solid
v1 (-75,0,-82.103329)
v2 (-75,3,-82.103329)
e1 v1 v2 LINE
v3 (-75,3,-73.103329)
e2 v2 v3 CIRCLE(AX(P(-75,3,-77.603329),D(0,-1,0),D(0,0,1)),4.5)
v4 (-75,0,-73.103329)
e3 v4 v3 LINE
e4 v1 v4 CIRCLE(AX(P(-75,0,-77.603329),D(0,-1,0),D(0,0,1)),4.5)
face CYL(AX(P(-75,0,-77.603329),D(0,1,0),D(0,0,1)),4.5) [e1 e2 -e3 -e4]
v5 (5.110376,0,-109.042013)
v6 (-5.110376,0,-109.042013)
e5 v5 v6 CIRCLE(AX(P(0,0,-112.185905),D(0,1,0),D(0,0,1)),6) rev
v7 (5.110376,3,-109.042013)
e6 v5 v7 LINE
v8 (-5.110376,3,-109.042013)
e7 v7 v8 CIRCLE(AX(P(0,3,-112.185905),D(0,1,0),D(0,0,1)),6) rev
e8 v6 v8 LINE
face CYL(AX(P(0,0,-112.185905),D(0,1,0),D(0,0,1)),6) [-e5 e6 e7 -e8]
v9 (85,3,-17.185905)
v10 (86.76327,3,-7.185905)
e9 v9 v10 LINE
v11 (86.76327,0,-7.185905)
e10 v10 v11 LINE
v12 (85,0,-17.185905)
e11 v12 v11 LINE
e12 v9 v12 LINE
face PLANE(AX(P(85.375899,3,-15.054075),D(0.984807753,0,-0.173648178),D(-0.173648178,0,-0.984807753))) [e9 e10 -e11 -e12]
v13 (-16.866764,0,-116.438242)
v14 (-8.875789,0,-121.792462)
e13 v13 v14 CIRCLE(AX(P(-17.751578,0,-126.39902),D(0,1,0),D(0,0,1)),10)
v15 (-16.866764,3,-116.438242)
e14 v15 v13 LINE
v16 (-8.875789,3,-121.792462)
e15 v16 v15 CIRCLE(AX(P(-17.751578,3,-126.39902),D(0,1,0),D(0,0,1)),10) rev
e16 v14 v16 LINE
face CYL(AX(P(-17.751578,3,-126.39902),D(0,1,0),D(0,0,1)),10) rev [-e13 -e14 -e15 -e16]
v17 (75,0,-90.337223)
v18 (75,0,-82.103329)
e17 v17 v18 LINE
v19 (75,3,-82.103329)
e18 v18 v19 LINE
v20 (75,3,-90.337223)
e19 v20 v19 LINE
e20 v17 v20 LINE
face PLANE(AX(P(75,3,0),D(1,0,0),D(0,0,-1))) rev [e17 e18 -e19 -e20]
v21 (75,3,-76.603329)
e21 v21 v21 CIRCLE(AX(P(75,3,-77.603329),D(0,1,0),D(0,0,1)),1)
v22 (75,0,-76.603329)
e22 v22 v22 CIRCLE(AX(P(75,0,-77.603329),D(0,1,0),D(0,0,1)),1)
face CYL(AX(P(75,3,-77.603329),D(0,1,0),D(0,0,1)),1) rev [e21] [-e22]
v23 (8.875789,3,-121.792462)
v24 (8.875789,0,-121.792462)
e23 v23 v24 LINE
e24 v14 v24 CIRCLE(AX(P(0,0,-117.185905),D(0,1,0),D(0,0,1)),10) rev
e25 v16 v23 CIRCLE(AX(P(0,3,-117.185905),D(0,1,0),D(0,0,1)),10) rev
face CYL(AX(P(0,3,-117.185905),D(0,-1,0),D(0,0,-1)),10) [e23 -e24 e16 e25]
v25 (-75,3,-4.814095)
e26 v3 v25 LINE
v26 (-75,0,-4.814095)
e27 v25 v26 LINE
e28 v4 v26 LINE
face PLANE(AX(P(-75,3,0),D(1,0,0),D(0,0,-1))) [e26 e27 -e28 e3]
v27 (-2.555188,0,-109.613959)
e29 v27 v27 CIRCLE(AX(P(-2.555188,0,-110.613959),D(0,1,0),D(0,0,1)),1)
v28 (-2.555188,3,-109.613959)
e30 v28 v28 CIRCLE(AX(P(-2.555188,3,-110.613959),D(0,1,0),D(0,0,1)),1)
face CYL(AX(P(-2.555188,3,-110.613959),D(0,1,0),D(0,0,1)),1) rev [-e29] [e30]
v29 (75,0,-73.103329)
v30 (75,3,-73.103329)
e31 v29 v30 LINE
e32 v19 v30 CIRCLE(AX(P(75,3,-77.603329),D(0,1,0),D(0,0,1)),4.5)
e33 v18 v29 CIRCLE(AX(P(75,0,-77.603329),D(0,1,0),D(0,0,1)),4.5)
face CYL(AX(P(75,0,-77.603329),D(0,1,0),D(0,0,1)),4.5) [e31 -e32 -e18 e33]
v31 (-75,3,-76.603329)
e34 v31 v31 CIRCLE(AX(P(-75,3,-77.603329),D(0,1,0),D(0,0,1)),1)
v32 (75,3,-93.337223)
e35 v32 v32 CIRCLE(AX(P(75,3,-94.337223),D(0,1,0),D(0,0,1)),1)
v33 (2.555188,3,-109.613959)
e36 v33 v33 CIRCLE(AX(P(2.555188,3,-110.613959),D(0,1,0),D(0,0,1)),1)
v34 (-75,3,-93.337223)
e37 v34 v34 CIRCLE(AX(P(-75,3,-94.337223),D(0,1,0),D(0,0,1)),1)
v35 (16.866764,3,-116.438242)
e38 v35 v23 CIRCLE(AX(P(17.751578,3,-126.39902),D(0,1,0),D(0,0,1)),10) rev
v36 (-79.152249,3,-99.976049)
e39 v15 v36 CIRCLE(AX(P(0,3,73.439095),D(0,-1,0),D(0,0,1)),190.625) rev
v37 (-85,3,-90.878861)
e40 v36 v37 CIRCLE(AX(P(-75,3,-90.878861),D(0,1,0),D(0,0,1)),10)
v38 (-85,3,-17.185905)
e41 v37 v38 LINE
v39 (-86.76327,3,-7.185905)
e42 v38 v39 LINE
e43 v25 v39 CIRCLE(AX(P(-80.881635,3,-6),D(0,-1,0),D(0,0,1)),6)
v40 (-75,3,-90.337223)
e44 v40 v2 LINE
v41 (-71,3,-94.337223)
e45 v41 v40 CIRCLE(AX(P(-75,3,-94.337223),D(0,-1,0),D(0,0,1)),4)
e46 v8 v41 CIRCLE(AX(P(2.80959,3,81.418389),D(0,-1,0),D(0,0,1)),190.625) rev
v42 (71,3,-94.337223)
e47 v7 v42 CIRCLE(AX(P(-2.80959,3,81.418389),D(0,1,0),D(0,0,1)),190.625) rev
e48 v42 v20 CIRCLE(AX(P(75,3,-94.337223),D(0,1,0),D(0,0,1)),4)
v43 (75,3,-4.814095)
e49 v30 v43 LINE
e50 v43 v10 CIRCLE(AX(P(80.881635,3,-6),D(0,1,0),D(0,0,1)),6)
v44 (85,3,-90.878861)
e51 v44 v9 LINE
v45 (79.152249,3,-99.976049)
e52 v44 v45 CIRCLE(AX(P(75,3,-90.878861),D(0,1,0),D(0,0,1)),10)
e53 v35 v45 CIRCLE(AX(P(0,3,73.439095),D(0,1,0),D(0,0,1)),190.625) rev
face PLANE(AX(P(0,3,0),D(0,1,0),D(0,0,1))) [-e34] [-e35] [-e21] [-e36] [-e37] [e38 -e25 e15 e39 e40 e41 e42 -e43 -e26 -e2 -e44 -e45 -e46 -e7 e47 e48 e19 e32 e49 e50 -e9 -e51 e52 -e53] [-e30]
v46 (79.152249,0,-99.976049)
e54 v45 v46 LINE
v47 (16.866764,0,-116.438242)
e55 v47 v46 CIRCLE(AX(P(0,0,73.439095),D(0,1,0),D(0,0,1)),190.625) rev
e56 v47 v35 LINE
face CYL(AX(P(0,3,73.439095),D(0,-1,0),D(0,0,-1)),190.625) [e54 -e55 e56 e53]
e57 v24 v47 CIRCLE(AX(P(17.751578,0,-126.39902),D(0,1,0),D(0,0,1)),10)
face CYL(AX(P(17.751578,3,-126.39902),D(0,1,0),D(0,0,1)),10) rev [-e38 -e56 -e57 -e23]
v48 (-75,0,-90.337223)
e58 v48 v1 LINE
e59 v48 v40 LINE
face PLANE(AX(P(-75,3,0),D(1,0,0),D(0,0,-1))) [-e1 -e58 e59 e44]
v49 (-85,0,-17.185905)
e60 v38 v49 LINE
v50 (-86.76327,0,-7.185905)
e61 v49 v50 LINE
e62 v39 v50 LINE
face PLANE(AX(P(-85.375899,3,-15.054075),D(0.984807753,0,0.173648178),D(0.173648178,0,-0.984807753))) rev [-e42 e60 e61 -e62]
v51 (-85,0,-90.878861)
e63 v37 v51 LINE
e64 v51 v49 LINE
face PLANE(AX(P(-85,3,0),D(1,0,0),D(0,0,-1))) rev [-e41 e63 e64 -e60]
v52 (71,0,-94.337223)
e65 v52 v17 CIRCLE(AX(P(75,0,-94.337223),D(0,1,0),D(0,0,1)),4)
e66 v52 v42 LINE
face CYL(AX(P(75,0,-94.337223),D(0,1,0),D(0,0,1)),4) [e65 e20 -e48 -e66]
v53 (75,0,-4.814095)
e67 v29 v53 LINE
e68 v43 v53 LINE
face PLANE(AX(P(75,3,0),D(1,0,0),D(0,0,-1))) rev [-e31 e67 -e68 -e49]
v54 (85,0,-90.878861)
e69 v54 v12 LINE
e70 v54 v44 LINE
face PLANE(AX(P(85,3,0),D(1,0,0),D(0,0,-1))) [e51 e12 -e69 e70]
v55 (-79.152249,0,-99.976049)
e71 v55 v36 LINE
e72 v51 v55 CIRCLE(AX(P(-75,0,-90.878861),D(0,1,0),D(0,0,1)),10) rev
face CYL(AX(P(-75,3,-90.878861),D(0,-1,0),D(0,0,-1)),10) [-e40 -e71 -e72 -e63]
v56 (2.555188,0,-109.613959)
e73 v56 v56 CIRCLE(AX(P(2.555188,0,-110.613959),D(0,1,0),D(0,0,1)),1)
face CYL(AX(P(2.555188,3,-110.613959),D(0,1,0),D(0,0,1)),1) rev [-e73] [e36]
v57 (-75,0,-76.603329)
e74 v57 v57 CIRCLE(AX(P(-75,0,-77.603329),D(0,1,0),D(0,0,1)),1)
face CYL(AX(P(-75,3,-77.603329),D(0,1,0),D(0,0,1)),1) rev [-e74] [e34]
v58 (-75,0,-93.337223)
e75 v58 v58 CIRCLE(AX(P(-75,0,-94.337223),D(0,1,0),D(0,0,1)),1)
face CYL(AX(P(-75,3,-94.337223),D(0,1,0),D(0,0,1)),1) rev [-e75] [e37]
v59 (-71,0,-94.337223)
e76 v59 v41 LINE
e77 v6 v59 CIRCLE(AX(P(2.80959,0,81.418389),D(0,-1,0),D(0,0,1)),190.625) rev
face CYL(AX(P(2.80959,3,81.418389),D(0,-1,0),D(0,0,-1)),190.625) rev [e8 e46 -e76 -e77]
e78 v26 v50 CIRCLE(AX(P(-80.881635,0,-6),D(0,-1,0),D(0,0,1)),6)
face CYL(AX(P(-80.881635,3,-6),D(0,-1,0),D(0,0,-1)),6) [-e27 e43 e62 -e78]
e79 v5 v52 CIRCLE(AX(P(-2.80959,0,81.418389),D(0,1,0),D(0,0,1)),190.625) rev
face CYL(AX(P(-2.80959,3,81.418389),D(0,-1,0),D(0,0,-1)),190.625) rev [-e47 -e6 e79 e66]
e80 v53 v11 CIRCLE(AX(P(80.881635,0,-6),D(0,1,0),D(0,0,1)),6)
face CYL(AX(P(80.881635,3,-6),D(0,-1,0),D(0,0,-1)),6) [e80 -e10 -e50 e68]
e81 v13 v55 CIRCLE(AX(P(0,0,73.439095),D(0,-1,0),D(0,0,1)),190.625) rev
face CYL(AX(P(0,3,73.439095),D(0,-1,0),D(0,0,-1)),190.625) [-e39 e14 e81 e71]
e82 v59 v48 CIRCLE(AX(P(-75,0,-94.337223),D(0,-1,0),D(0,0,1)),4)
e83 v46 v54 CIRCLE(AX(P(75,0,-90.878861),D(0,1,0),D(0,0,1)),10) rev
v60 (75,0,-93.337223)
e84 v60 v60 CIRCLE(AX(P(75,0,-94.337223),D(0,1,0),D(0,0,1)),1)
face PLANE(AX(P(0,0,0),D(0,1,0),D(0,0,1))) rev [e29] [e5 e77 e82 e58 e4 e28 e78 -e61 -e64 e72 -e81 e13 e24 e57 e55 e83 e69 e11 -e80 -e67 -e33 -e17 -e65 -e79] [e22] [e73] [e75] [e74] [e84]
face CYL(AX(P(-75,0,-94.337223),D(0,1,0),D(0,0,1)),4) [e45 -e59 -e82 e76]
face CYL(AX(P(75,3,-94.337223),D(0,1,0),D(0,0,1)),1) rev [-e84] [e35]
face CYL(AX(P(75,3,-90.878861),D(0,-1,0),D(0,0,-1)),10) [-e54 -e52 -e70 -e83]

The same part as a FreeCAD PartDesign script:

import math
import FreeCAD as App
import Part
import Sketcher
Q = App.Units.Quantity


def edges_at(feature, points):
    """Names of the edges that pass closest to the given points."""
    edges = feature.Shape.Edges
    near = lambda p: min(range(len(edges)), key=lambda i: edges[i].distToShape(Part.Vertex(*p))[0])
    return sorted({f"Edge{near(p) + 1}" for p in points})

doc = App.newDocument("Part")
body = doc.addObject("PartDesign::Body", "Body")

sketch1 = body.newObject("Sketcher::SketchObject", "Sketch")
sketch1.AttachmentSupport = (doc.getObject("XZ_Plane"), [""])
sketch1.MapMode = "FlatFace"
sketch1.addGeometry([
    Part.ArcOfCircle(Part.Circle(App.Vector(0, -117.185905, 0), App.Vector(0, 0, 1), 10), math.radians(-90), math.radians(1.503013)),
    Part.LineSegment(App.Vector(0, -127.185905, 0), App.Vector(0, -109.185905, 0)),
    Part.ArcOfCircle(Part.Circle(App.Vector(-2.80959, 81.418389, 0), App.Vector(0, 0, 1), 190.625), math.radians(-89.155497), math.radians(-65.909352)),
    Part.LineSegment(App.Vector(75, -92.603329, 0), App.Vector(75, -4.814095, 0)),
    Part.ArcOfCircle(Part.Circle(App.Vector(80.881635, -6, 0), App.Vector(0, 0, 1), 6), math.radians(-11.39962), math.radians(168.60038)),
    Part.LineSegment(App.Vector(86.76327, -7.185905, 0), App.Vector(85, -17.185905, 0)),
    Part.LineSegment(App.Vector(85, -17.185905, 0), App.Vector(85, -97.185905, 0)),
    Part.ArcOfCircle(Part.Circle(App.Vector(0, 73.439095, 0), App.Vector(0, 0, 1), 190.625), math.radians(-86.993975), math.radians(-63.51896)),
], False)
sketch1.addConstraint([
    Sketcher.Constraint("Coincident", 0, 1, 1, 1),
    Sketcher.Constraint("Coincident", 1, 2, 2, 1),
    Sketcher.Constraint("Coincident", 2, 2, 3, 1),
    Sketcher.Constraint("Coincident", 3, 2, 4, 2),
    Sketcher.Constraint("Coincident", 4, 1, 5, 1),
    Sketcher.Constraint("Coincident", 5, 2, 6, 1),
    Sketcher.Constraint("Coincident", 6, 2, 7, 2),
    Sketcher.Constraint("Coincident", 7, 1, 0, 2),
    Sketcher.Constraint("Vertical", 1),
    Sketcher.Constraint("Vertical", 3),
    Sketcher.Constraint("Vertical", 6),
    Sketcher.Constraint("Equal", 2, 7),
    Sketcher.Constraint("PointOnObject", 0, 3, -2),
    Sketcher.Constraint("PointOnObject", 7, 3, -2),
    Sketcher.Constraint("PointOnObject", 0, 1, -2),
    Sketcher.Constraint("Radius", 0, 10.0),
    Sketcher.Constraint("Radius", 4, 6.0),
    Sketcher.Constraint("DistanceY", 1, 1, 1, 2, 18.0),
    Sketcher.Constraint("DistanceY", 6, 2, 6, 1, 80.0),
    Sketcher.Constraint("Angle", 5, Q("-100 deg")),
    Sketcher.Constraint("DistanceY", 4, 3, -1, 1, 6.0),
    Sketcher.Constraint("DistanceX", -1, 1, 2, 2, 75.0),
    Sketcher.Constraint("DistanceX", -1, 1, 5, 2, 85.0),
    Sketcher.Constraint("Radius", 2, 190.625),
    Sketcher.Constraint("DistanceY", 5, 2, 4, 1, 10.0),
    Sketcher.Constraint("DistanceY", 1, 2, 6, 2, 12.0),
    Sketcher.Constraint("DistanceY", 3, 1, 3, 2, 87.789234),
    Sketcher.Constraint("DistanceY", -1, 1, 2, 3, 81.418389),
])
pad1 = body.newObject("PartDesign::Pad", "Pad")
pad1.Profile = sketch1
pad1.Length = 3
pad1.Reversed = True
doc.recompute()

fillet = body.newObject("PartDesign::Fillet", "Fillet")
fillet.Base = (pad1, edges_at(pad1, [(9.997, 1.5, -116.924), (85, 1.5, -97.186)]))
fillet.Radius = 10
doc.recompute()

mirrored = body.newObject("PartDesign::Mirrored", "Mirrored")
mirrored.Originals = [pad1]
mirrored.MirrorPlane = (doc.getObject("YZ_Plane"), [""])
body.Tip = mirrored
doc.recompute()

fillet2 = body.newObject("PartDesign::Fillet", "Fillet001")
fillet2.Base = (mirrored, edges_at(mirrored, [(-9.997, 1.5, -116.924), (-85, 1.5, -97.186)]))
fillet2.Radius = 10

sketch2 = body.newObject("Sketcher::SketchObject", "Sketch001")
sketch2.AttachmentSupport = (doc.getObject("XZ_Plane"), [""])
sketch2.MapMode = "FlatFace"
sketch2.addGeometry([
    Part.LineSegment(App.Vector(0, -109.185905, 0), App.Vector(0, -106.185905, 0)),
    Part.ArcOfCircle(Part.Circle(App.Vector(0, -112.185905, 0), App.Vector(0, 0, 1), 6), math.radians(31.599734), math.radians(90)),
    Part.ArcOfCircle(Part.Circle(App.Vector(-2.80959, 81.418389, 0), App.Vector(0, 0, 1), 190.625), math.radians(-89.155497), math.radians(-87.618826)),
    Part.ArcOfCircle(Part.Circle(App.Vector(-2.809586, 81.418381, 0), App.Vector(0, 0, 1), 190.624992), math.radians(-67.219747), math.radians(-65.909352)),
    Part.ArcOfCircle(Part.Circle(App.Vector(75, -94.337223, 0), App.Vector(0, 0, 1), 4), math.radians(90), math.radians(180)),
    Part.LineSegment(App.Vector(75, -90.337223, 0), App.Vector(75, -92.603329, 0)),
    Part.LineSegment(App.Vector(75, -73.103329, 0), App.Vector(75, -82.103329, 0)),
    Part.ArcOfCircle(Part.Circle(App.Vector(75, -77.603329, 0), App.Vector(0, 0, 1), 4.5), math.radians(90), math.radians(270)),
], False)
sketch2.addConstraint([
    Sketcher.Constraint("Coincident", 0, 2, 1, 2),
    Sketcher.Constraint("Coincident", 1, 1, 2, 2),
    Sketcher.Constraint("Coincident", 2, 1, 0, 1),
    Sketcher.Constraint("Coincident", 3, 1, 4, 2),
    Sketcher.Constraint("Coincident", 4, 1, 5, 1),
    Sketcher.Constraint("Coincident", 5, 2, 3, 2),
    Sketcher.Constraint("Coincident", 6, 1, 7, 1),
    Sketcher.Constraint("Coincident", 7, 2, 6, 2),
    Sketcher.Constraint("Vertical", 0),
    Sketcher.Constraint("Vertical", 5),
    Sketcher.Constraint("Vertical", 6),
    Sketcher.Constraint("Coincident", 3, 3, 2, 3),
    Sketcher.Constraint("PointOnObject", 1, 3, -2),
    Sketcher.Constraint("PointOnObject", 0, 2, -2),
    Sketcher.Constraint("Horizontal", 4, 3, 3, 1),
    Sketcher.Constraint("Vertical", 4, 3, 7, 3),
    Sketcher.Constraint("Vertical", 7, 3, 4, 1),
    Sketcher.Constraint("Vertical", 5, 2, 6, 1),
    Sketcher.Constraint("Radius", 1, 6.0),
    Sketcher.Constraint("Radius", 4, 4.0),
    Sketcher.Constraint("Radius", 7, 4.5),
    Sketcher.Constraint("DistanceY", 0, 1, 0, 2, 3.0),
    Sketcher.Constraint("DistanceX", -1, 1, 4, 3, 75.0),
    Sketcher.Constraint("Radius", 2, 190.625),
    Sketcher.Constraint("DistanceY", 5, 2, 7, 3, 15.0),
    Sketcher.Constraint("Radius", 3, 190.624992),
    Sketcher.Constraint("DistanceY", 5, 2, 5, 1, 2.266106),
    Sketcher.Constraint("DistanceY", -1, 1, 2, 3, 81.418389),
])
pad2 = body.newObject("PartDesign::Pad", "Pad001")
pad2.Profile = sketch2
pad2.Length = 3
pad2.Reversed = True
doc.recompute()

mirrored2 = body.newObject("PartDesign::Mirrored", "Mirrored001")
mirrored2.Originals = [pad2]
mirrored2.MirrorPlane = (doc.getObject("YZ_Plane"), [""])
body.Tip = mirrored2

sketch3 = body.newObject("Sketcher::SketchObject", "Sketch002")
sketch3.AttachmentSupport = (doc.getObject("XZ_Plane"), [""])
sketch3.MapMode = "FlatFace"
sketch3.AttachmentOffset = App.Placement(App.Vector(0, 0, -3), App.Rotation())
sketch3.addGeometry([
    Part.Circle(App.Vector(2.555188, -110.613959, 0), App.Vector(0, 0, 1), 1),
    Part.Circle(App.Vector(75, -94.337223, 0), App.Vector(0, 0, 1), 1),
    Part.Circle(App.Vector(75, -77.603329, 0), App.Vector(0, 0, 1), 1),
], False)
sketch3.addConstraint([
    Sketcher.Constraint("Equal", 0, 1),
    Sketcher.Constraint("Equal", 1, 2),
    Sketcher.Constraint("Vertical", 1, 3, 2, 3),
    Sketcher.Constraint("Diameter", 0, 2.0),
    Sketcher.Constraint("DistanceX", -1, 1, 1, 3, 75.0),
    Sketcher.Constraint("DistanceX", -1, 1, 0, 3, 2.555188),
    Sketcher.Constraint("DistanceY", 0, 3, -1, 1, 110.613959),
    Sketcher.Constraint("DistanceY", 2, 3, -1, 1, 77.603329),
    Sketcher.Constraint("DistanceY", 1, 3, -1, 1, 94.337223),
])
doc.recompute()
hole = body.newObject("PartDesign::Hole", "Hole")
hole.Profile = sketch3
hole.ThreadType = "None"
hole.Diameter = 2
hole.DepthType = "ThroughAll"
hole.Reversed = True
doc.recompute()

mirrored3 = body.newObject("PartDesign::Mirrored", "Mirrored002")
mirrored3.Originals = [hole]
mirrored3.MirrorPlane = (doc.getObject("YZ_Plane"), [""])
body.Tip = mirrored3

doc.recompute()
